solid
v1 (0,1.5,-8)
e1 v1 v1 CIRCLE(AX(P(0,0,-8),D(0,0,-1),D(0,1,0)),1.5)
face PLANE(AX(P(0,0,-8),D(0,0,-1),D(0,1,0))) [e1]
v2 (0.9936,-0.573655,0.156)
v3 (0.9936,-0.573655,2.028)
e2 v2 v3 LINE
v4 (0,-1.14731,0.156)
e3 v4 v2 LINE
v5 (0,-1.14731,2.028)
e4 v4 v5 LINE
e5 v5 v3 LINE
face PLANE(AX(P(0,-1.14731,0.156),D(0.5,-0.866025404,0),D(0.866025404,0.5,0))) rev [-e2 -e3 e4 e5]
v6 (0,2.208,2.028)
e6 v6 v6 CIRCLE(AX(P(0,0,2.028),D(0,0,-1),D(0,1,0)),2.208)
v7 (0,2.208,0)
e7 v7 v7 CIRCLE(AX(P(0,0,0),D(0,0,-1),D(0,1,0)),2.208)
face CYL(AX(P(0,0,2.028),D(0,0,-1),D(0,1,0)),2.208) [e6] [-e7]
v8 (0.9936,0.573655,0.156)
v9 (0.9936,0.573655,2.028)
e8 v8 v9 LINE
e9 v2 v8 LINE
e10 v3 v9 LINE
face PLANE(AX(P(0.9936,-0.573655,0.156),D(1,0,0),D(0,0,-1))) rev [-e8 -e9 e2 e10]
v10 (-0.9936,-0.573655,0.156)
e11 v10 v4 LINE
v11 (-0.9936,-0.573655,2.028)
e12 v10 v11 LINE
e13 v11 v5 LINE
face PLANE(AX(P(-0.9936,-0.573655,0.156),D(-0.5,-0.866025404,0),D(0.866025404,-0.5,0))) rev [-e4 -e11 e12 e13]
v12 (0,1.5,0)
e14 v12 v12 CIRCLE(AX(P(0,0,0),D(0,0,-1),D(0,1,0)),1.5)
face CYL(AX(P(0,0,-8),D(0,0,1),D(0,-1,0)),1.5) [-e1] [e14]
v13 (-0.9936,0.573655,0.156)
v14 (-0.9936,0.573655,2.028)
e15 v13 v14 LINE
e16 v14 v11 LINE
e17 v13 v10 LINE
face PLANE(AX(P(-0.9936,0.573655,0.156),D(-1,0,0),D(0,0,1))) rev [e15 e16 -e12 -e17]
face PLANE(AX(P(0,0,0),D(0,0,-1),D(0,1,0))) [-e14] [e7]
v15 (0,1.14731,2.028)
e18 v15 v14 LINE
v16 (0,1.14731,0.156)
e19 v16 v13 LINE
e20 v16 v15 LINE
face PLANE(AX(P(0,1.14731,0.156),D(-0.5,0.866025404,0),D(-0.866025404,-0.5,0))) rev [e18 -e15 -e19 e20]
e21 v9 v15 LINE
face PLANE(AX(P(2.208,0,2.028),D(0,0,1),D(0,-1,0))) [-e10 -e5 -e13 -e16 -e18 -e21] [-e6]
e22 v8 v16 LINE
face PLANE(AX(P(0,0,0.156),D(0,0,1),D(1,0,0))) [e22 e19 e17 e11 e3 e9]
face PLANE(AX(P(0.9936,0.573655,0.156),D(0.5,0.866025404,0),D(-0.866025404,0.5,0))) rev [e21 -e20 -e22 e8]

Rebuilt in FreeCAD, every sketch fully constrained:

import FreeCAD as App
import Part
import Sketcher
Q = App.Units.Quantity


def add_polygon(sketch, points):
    """Adds a closed chain of lines whose ends are joined by coincident constraints."""
    first, n = sketch.GeometryCount, len(points)
    for a, b in zip(points, points[1:] + points[:1]):
        sketch.addGeometry(Part.LineSegment(App.Vector(*a, 0), App.Vector(*b, 0)), False)
    for i in range(n):
        sketch.addConstraint(Sketcher.Constraint("Coincident", first + i, 2, first + (i + 1) % n, 1))

doc = App.newDocument("Part")
params = doc.addObject("Spreadsheet::Sheet", "Params")
for row, (alias, value) in enumerate([
    ("revolution_angle", "360 deg"),
    ("sketch2_diameter", "3 mm"),
    ("pad1_length", "8 mm"),
    ("pocket1_length", "1.872 mm"),
], start=1):
    params.set(f"A{row}", alias)
    params.set(f"B{row}", "=" + value)
    params.setAlias(f"B{row}", alias)

body = doc.addObject("PartDesign::Body", "Body")

sketch1 = doc.addObject("Sketcher::SketchObject", "Sketch")
body.addObject(sketch1)
sketch1.AttachmentSupport = (doc.XZ_Plane, [""])
sketch1.MapMode = "FlatFace"
add_polygon(sketch1, [(0, 2), (0, 0), (2.2, 0), (2.2, 2)])
sketch1.addConstraint(Sketcher.Constraint("Vertical", 0))
sketch1.addConstraint(Sketcher.Constraint("Horizontal", 1))
sketch1.addConstraint(Sketcher.Constraint("Vertical", 2))
sketch1.addConstraint(Sketcher.Constraint("Horizontal", 3))
sketch1.addConstraint(Sketcher.Constraint("Coincident", 0, 2, -1, 1))
sketch1.addConstraint(Sketcher.Constraint("DistanceX", 1, 1, 1, 2, Q("2.208 mm")))
sketch1.addConstraint(Sketcher.Constraint("DistanceY", 0, 2, 0, 1, Q("2.028 mm")))
revolution = doc.addObject("PartDesign::Revolution", "Revolution")
body.addObject(revolution)
revolution.Profile = sketch1
revolution.ReferenceAxis = (sketch1, ["V_Axis"])
revolution.setExpression("Angle", "Params.revolution_angle")

sketch2 = doc.addObject("Sketcher::SketchObject", "Sketch001")
body.addObject(sketch2)
sketch2.AttachmentSupport = (doc.XY_Plane, [""])
sketch2.MapMode = "FlatFace"
sketch2.addGeometry(Part.Circle(App.Vector(0, 0, 0), App.Vector(0, 0, 1), 1.5), False)
sketch2.addConstraint(Sketcher.Constraint("Coincident", 0, 3, -1, 1))
sketch2.addConstraint(Sketcher.Constraint("Diameter", 0, Q("3 mm")))
sketch2.setExpression("Constraints[1]", "Params.sketch2_diameter")
pad1 = doc.addObject("PartDesign::Pad", "Pad")
body.addObject(pad1)
pad1.Profile = sketch2
pad1.setExpression("Length", "Params.pad1_length")
pad1.Reversed = True

sketch3 = doc.addObject("Sketcher::SketchObject", "Sketch002")
body.addObject(sketch3)
sketch3.AttachmentSupport = (doc.XY_Plane, [""])
sketch3.MapMode = "FlatFace"
sketch3.AttachmentOffset = App.Placement(App.Vector(0, 0, 2.028), App.Rotation())
add_polygon(sketch3, [(1, -0.6), (1, 0.6), (0, 1.1), (-1, 0.6), (-1, -0.6), (0, -1.1)])
sketch3.addConstraint(Sketcher.Constraint("Vertical", 0))
sketch3.addConstraint(Sketcher.Constraint("Vertical", 3))
sketch3.addConstraint(Sketcher.Constraint("Symmetric", 0, 2, 3, 2, -1, 1))
sketch3.addConstraint(Sketcher.Constraint("Symmetric", 1, 2, 4, 2, -1, 1))
sketch3.addConstraint(Sketcher.Constraint("PointOnObject", 1, 2, -2))
sketch3.addConstraint(Sketcher.Constraint("Parallel", 2, 5))
sketch3.addConstraint(Sketcher.Constraint("Horizontal", 0, 2, 2, 2))
sketch3.addConstraint(Sketcher.Constraint("Angle", 1, Q("150 deg")))
sketch3.addConstraint(Sketcher.Constraint("DistanceY", 0, 1, 0, 2, Q("1.14731 mm")))
sketch3.addConstraint(Sketcher.Constraint("DistanceX", -1, 1, 0, 2, Q("0.9936 mm")))
pocket1 = doc.addObject("PartDesign::Pocket", "Pocket")
body.addObject(pocket1)
pocket1.Profile = sketch3
pocket1.setExpression("Length", "Params.pocket1_length")

doc.recompute()
